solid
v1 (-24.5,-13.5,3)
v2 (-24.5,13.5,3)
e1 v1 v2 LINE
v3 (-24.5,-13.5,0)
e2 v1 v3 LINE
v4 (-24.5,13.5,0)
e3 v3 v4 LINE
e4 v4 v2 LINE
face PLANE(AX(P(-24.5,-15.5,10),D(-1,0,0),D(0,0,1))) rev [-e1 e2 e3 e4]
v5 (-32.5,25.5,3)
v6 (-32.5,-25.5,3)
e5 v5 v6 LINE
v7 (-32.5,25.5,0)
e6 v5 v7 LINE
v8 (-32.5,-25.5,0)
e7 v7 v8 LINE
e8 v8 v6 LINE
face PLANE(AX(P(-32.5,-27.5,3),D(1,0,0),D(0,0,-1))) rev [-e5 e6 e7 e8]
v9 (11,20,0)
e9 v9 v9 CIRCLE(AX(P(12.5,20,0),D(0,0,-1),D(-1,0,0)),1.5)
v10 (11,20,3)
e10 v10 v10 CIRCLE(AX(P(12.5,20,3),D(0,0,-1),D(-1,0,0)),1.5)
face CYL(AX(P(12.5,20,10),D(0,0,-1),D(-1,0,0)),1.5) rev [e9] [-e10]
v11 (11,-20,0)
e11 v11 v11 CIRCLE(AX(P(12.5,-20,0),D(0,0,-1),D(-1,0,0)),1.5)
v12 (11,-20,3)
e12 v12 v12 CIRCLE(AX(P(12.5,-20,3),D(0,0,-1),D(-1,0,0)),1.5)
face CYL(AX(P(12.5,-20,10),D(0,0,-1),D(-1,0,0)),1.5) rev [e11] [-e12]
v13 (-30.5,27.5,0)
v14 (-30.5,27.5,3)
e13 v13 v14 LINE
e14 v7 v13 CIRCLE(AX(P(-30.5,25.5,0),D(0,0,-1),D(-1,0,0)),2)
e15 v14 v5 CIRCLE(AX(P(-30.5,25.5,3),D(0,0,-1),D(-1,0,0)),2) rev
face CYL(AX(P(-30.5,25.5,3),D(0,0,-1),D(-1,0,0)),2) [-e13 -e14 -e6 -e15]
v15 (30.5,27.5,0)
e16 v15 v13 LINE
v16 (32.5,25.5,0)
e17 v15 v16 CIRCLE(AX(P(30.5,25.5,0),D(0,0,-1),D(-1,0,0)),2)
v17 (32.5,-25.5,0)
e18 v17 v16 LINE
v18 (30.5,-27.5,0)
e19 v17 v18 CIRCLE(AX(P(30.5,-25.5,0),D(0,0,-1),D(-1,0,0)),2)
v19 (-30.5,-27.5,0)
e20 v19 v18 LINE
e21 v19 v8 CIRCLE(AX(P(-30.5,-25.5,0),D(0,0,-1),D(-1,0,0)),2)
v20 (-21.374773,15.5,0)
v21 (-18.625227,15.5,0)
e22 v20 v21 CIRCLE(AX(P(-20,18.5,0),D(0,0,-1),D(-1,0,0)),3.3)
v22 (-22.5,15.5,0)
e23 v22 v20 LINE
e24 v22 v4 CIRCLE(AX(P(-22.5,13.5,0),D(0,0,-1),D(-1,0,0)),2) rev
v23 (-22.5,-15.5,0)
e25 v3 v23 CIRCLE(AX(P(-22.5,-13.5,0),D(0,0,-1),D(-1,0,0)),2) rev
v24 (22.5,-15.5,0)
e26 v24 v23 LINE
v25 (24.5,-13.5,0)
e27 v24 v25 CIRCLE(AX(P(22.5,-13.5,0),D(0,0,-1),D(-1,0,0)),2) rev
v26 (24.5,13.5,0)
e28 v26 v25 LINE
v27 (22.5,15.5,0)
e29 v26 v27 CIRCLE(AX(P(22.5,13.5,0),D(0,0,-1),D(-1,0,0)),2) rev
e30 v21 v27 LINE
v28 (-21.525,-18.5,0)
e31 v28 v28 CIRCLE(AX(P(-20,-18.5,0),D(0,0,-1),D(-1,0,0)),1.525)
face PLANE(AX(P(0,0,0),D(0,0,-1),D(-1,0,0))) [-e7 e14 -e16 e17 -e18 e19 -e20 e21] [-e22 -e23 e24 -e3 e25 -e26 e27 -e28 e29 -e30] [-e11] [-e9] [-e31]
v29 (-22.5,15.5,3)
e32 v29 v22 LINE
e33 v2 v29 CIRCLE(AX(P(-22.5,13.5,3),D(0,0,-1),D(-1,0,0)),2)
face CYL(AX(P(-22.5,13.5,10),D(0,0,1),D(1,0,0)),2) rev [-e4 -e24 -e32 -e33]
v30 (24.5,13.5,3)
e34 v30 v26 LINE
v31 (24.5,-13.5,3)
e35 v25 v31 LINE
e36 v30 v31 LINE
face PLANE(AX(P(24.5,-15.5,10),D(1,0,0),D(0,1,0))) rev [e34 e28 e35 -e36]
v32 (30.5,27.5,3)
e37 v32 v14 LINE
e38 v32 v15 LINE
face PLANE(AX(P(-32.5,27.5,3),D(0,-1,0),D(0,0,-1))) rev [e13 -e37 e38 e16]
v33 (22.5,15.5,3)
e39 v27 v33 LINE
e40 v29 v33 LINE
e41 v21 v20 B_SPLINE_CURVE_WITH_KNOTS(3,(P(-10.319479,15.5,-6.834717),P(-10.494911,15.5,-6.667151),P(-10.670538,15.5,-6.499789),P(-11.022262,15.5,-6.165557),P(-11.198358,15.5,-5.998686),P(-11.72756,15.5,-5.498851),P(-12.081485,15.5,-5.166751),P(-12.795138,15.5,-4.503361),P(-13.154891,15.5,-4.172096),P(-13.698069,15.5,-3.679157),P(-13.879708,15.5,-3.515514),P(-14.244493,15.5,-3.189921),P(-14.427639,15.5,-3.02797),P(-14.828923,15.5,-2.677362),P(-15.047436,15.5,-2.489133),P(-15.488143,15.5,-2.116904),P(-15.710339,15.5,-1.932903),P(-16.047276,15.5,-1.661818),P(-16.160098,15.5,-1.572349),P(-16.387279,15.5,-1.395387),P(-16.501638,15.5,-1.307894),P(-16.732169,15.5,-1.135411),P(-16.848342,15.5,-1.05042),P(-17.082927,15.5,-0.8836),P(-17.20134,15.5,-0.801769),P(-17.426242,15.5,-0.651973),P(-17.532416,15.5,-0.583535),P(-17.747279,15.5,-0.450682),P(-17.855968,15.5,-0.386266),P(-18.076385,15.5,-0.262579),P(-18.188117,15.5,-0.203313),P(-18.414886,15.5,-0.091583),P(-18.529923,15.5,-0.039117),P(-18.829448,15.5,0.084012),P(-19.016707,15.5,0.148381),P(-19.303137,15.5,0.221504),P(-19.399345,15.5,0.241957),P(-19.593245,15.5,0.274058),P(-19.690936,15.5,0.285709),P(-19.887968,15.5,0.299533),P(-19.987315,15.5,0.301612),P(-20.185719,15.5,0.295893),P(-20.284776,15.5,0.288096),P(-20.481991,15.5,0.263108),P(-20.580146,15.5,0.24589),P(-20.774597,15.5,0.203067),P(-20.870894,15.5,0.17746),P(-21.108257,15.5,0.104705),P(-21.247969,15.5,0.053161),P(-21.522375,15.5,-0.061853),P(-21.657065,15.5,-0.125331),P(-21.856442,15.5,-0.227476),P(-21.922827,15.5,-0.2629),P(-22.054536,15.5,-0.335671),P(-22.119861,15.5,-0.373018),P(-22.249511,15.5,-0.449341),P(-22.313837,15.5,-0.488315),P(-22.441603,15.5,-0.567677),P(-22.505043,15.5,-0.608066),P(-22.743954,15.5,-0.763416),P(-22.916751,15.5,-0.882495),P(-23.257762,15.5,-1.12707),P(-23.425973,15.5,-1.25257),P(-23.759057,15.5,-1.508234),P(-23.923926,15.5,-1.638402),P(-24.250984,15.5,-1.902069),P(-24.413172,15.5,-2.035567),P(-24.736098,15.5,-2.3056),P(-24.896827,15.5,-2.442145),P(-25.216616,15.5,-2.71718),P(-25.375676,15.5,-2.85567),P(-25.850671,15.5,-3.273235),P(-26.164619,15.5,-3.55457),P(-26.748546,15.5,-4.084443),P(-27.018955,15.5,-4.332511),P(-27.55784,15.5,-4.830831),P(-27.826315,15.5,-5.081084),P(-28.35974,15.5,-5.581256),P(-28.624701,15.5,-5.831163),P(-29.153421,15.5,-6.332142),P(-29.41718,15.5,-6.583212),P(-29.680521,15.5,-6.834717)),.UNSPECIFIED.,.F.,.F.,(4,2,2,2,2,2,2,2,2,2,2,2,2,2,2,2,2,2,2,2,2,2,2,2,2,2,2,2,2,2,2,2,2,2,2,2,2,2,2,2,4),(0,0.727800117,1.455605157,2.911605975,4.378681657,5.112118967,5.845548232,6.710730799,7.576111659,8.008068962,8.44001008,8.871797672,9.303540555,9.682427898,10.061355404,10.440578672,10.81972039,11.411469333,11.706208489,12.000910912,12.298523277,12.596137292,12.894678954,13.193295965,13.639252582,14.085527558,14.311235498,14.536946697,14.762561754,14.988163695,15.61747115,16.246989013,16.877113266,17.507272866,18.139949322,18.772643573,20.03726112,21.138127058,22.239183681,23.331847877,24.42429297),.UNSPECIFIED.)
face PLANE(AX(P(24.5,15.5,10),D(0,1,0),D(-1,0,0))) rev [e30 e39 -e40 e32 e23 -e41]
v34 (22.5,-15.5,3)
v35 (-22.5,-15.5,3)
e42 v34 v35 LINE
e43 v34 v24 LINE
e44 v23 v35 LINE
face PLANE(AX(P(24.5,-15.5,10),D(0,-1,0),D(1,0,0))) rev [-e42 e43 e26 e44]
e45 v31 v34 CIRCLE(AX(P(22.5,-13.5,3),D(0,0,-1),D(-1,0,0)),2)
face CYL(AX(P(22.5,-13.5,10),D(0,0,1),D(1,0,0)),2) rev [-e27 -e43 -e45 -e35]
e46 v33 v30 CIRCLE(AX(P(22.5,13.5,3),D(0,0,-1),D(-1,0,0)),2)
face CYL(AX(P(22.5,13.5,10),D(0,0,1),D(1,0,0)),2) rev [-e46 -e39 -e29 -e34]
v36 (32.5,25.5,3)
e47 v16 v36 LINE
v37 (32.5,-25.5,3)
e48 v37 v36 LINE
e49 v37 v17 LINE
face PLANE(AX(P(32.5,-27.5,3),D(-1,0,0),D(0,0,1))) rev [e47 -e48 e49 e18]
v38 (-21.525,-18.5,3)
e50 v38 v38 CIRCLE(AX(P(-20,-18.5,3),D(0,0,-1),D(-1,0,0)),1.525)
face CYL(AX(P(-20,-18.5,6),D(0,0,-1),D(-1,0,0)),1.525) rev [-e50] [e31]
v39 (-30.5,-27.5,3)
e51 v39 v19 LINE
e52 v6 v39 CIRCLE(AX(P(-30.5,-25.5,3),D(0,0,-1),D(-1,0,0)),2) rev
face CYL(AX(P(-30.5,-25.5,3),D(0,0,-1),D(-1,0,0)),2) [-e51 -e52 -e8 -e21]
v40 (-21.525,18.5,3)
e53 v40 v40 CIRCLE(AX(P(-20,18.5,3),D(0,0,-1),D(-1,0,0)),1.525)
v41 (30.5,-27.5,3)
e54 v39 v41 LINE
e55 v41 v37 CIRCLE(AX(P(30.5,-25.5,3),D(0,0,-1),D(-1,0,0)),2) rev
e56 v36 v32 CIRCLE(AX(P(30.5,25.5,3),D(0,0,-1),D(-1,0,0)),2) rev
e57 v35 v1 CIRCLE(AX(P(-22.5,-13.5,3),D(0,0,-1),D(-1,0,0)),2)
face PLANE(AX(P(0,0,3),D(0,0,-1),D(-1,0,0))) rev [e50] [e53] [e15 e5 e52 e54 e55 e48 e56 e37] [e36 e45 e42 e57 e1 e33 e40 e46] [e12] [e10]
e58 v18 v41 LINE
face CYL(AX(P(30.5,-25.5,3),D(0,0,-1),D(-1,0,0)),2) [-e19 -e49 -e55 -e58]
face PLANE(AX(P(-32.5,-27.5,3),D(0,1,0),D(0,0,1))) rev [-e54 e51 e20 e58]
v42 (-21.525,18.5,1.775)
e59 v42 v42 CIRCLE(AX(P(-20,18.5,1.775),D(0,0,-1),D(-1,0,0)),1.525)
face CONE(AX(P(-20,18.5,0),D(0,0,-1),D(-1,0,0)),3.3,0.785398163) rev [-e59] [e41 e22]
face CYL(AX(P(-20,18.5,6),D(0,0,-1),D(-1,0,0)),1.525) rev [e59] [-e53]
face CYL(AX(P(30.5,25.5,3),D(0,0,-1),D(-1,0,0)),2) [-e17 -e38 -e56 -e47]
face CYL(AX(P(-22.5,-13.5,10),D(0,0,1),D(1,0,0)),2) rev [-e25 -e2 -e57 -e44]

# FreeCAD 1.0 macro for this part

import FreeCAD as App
import Part
import Sketcher

V = App.Vector
Q = App.Units.Quantity


def edges_at(feature, points):
    """Names of the edges that pass closest to the given points."""
    edges = feature.Shape.Edges
    near = lambda p: min(range(len(edges)), key=lambda i: edges[i].distToShape(Part.Vertex(*p))[0])
    return sorted({f"Edge{near(p) + 1}" for p in points})


def add_polygon(sketch, points):
    """Adds a closed chain of lines whose ends are joined by coincident constraints."""
    first, n = sketch.GeometryCount, len(points)
    for a, b in zip(points, points[1:] + points[:1]):
        sketch.addGeometry(Part.LineSegment(App.Vector(*a, 0), App.Vector(*b, 0)), False)
    for i in range(n):
        sketch.addConstraint(Sketcher.Constraint("Coincident", first + i, 2, first + (i + 1) % n, 1))

doc = App.newDocument("Part")
body = doc.addObject("PartDesign::Body", "Body")

sketch1 = body.newObject("Sketcher::SketchObject", "Sketch")
sketch1.AttachmentSupport = (doc.getObject("XY_Plane"), [""])
sketch1.MapMode = "FlatFace"
add_polygon(sketch1, [(-32, 28), (-32, -28), (32, -28), (32, 28)])
sketch1.addConstraint([
    Sketcher.Constraint("Vertical", 0),
    Sketcher.Constraint("Horizontal", 1),
    Sketcher.Constraint("Vertical", 2),
    Sketcher.Constraint("Horizontal", 3),
    Sketcher.Constraint("Symmetric", 0, 2, 2, 2, -1, 1),
    Sketcher.Constraint("DistanceX", 1, 1, 1, 2, Q("65 mm")),
    Sketcher.Constraint("DistanceY", 0, 2, 0, 1, Q("55 mm")),
])
pad1 = body.newObject("PartDesign::Pad", "Pad")
pad1.Profile = sketch1
pad1.Length = 3
doc.recompute()

fillet = body.newObject("PartDesign::Fillet", "Fillet")
fillet.Base = (pad1, edges_at(pad1, [
    (32.5, -27.5, 1.5),
    (-32.5, -27.5, 1.5),
    (-32.5, 27.5, 1.5),
    (32.5, 27.5, 1.5),
]))
fillet.Radius = 2

sketch2 = body.newObject("Sketcher::SketchObject", "Sketch001")
sketch2.AttachmentSupport = (doc.getObject("XY_Plane"), [""])
sketch2.MapMode = "FlatFace"
sketch2.addGeometry([
    Part.Circle(V(-20, -18.5, 0), V(0, 0, 1), 1.5),
    Part.Circle(V(-20, 18.5, 0), V(0, 0, 1), 1.5),
], False)
sketch2.addConstraint([
    Sketcher.Constraint("Equal", 0, 1),
    Sketcher.Constraint("Symmetric", 0, 3, 1, 3, -1),
    Sketcher.Constraint("Diameter", 0, Q("3.05 mm")),
    Sketcher.Constraint("DistanceX", 0, 3, -1, 1, Q("20 mm")),
    Sketcher.Constraint("DistanceY", 0, 3, 1, 3, Q("37 mm")),
])
pocket1 = body.newObject("PartDesign::Pocket", "Pocket")
pocket1.Profile = sketch2
pocket1.Length = 6
pocket1.Reversed = True

sketch3 = body.newObject("Sketcher::SketchObject", "Sketch002")
sketch3.AttachmentSupport = (doc.getObject("XY_Plane"), [""])
sketch3.MapMode = "FlatFace"
sketch3.addGeometry(Part.Circle(V(-20, 18.5, 0), V(0, 0, 1), 1.5), False)
sketch3.addConstraint([
    Sketcher.Constraint("Diameter", 0, Q("3 mm")),
    Sketcher.Constraint("DistanceX", 0, 3, -1, 1, Q("20 mm")),
    Sketcher.Constraint("DistanceY", -1, 1, 0, 3, Q("18.5 mm")),
])
doc.recompute()
hole = body.newObject("PartDesign::Hole", "Hole")
hole.Profile = sketch3
hole.ThreadType = "None"
hole.Diameter = 3
hole.DepthType = "Dimension"
hole.Depth = 7.25
hole.DrillPoint = "Angled"
hole.DrillPointAngle = 118
hole.HoleCutType = "Countersink"
hole.HoleCutDiameter = 6.6
hole.HoleCutCountersinkAngle = 90
hole.Reversed = True

sketch4 = body.newObject("Sketcher::SketchObject", "Sketch003")
sketch4.AttachmentSupport = (doc.getObject("XY_Plane"), [""])
sketch4.MapMode = "FlatFace"
sketch4.addGeometry([
    Part.Circle(V(12.5, 20, 0), V(0, 0, 1), 1.5),
    Part.Circle(V(12.5, -20, 0), V(0, 0, 1), 1.5),
], False)
sketch4.addConstraint([
    Sketcher.Constraint("Equal", 0, 1),
    Sketcher.Constraint("Symmetric", 0, 3, 1, 3, -1),
    Sketcher.Constraint("Diameter", 0, Q("3 mm")),
    Sketcher.Constraint("DistanceY", -1, 1, 0, 3, Q("20 mm")),
    Sketcher.Constraint("DistanceX", -1, 1, 0, 3, Q("12.5 mm")),
])
pocket2 = body.newObject("PartDesign::Pocket", "Pocket001")
pocket2.Profile = sketch4
pocket2.Length = 10
pocket2.Reversed = True

sketch5 = body.newObject("Sketcher::SketchObject", "Sketch004")
sketch5.AttachmentSupport = (doc.getObject("XY_Plane"), [""])
sketch5.MapMode = "FlatFace"
add_polygon(sketch5, [(24, 16), (24, -16), (-24, -16), (-24, 16)])
sketch5.addConstraint([
    Sketcher.Constraint("Vertical", 0),
    Sketcher.Constraint("Horizontal", 1),
    Sketcher.Constraint("Vertical", 2),
    Sketcher.Constraint("Horizontal", 3),
    Sketcher.Constraint("Symmetric", 0, 2, 2, 2, -1, 1),
    Sketcher.Constraint("DistanceX", 1, 2, 1, 1, Q("49 mm")),
    Sketcher.Constraint("DistanceY", 0, 2, 0, 1, Q("31 mm")),
])
pocket3 = body.newObject("PartDesign::Pocket", "Pocket002")
pocket3.Profile = sketch5
pocket3.Length = 10
pocket3.Reversed = True
doc.recompute()

fillet2 = body.newObject("PartDesign::Fillet", "Fillet001")
fillet2.Base = (pocket3, edges_at(pocket3, [
    (-24.5, 15.5, 1.5),
    (-24.5, -15.5, 1.5),
    (24.5, -15.5, 1.5),
    (24.5, 15.5, 1.5),
]))
fillet2.Radius = 2

doc.recompute()
